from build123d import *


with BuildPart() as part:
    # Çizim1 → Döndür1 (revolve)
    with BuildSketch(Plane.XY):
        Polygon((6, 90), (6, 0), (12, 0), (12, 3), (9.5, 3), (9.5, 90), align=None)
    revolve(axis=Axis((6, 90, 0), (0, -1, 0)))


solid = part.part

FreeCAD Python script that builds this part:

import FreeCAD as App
import Part
import Sketcher
Q = App.Units.Quantity


def add_polygon(sketch, points):
    """Adds a closed chain of lines whose ends are joined by coincident constraints."""
    first, n = sketch.GeometryCount, len(points)
    for a, b in zip(points, points[1:] + points[:1]):
        sketch.addGeometry(Part.LineSegment(App.Vector(*a, 0), App.Vector(*b, 0)), False)
    for i in range(n):
        sketch.addConstraint(Sketcher.Constraint("Coincident", first + i, 2, first + (i + 1) % n, 1))

doc = App.newDocument("Part")
body = doc.addObject("PartDesign::Body", "Body")

sketch1 = doc.addObject("Sketcher::SketchObject", "Sketch")
body.addObject(sketch1)
sketch1.AttachmentSupport = (doc.XY_Plane, [""])
sketch1.MapMode = "FlatFace"
add_polygon(sketch1, [(6, 90), (6, 0), (12, 0), (12, 3), (9.5, 3), (9.5, 90)])
sketch1.addGeometry(Part.LineSegment(App.Vector(6, 90, 0), App.Vector(6, 0, 0)), True)
sketch1.addConstraint([
    Sketcher.Constraint("Vertical", 0),
    Sketcher.Constraint("Horizontal", 1),
    Sketcher.Constraint("Vertical", 2),
    Sketcher.Constraint("Horizontal", 3),
    Sketcher.Constraint("Vertical", 4),
    Sketcher.Constraint("Horizontal", 5),
    Sketcher.Constraint("Vertical", 6),
    Sketcher.Constraint("Coincident", 6, 1, 5, 2),
    Sketcher.Constraint("PointOnObject", 0, 2, -1),
    Sketcher.Constraint("PointOnObject", 6, 2, -1),
    Sketcher.Constraint("DistanceX", 1, 1, 1, 2, Q("6 mm")),
    Sketcher.Constraint("DistanceY", 0, 2, 0, 1, Q("90 mm")),
    Sketcher.Constraint("DistanceY", 2, 1, 2, 2, Q("3 mm")),
    Sketcher.Constraint("DistanceX", 3, 2, 3, 1, Q("2.5 mm")),
    Sketcher.Constraint("DistanceX", -1, 1, 0, 2, Q("6 mm")),
])
revolution = doc.addObject("PartDesign::Revolution", "Revolution")
body.addObject(revolution)
revolution.Profile = sketch1
revolution.ReferenceAxis = (sketch1, ["Axis0"])
revolution.Angle = 360

doc.recompute()
